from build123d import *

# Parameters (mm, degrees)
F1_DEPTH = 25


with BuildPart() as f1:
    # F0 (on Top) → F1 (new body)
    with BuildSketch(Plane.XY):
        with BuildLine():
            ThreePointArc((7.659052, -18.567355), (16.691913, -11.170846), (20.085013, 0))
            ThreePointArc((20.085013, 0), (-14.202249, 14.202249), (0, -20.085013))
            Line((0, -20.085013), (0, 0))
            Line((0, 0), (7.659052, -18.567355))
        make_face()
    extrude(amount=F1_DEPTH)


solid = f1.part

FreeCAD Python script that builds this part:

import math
import FreeCAD as App
import Part
import Sketcher
from FreeCAD import Vector
Q = App.Units.Quantity

doc = App.newDocument("Part")
body = doc.addObject("PartDesign::Body", "Body")

sketch1 = body.newObject("Sketcher::SketchObject", "Sketch")
sketch1.AttachmentSupport = (doc.getObject("XY_Plane"), [""])
sketch1.MapMode = "FlatFace"
sketch1.addGeometry([
    Part.ArcOfCircle(Part.Circle(Vector(0, 0, 0), Vector(0, 0, 1), 20), math.radians(-68), math.radians(0)),
    Part.ArcOfCircle(Part.Circle(Vector(0, 0, 0), Vector(0, 0, 1), 20), math.radians(0), math.radians(270)),
    Part.LineSegment(Vector(0, -20, 0), Vector(0, 0, 0)),
    Part.LineSegment(Vector(0, 0, 0), Vector(8, -19, 0)),
], False)
sketch1.addConstraint([
    Sketcher.Constraint("Tangent", 0, 2, 1, 1),
    Sketcher.Constraint("Coincident", 1, 2, 2, 1),
    Sketcher.Constraint("Coincident", 2, 2, 3, 1),
    Sketcher.Constraint("Coincident", 3, 2, 0, 1),
    Sketcher.Constraint("Vertical", 2),
    Sketcher.Constraint("Coincident", 0, 3, -1, 1),
    Sketcher.Constraint("Coincident", 2, 2, -1, 1),
    Sketcher.Constraint("Equal", 0, 1),
    Sketcher.Constraint("PointOnObject", 0, 2, -1),
    Sketcher.Constraint("Radius", 0, Q("20.085012 mm")),
    Sketcher.Constraint("DistanceX", 1, 2, 3, 2, Q("7.659052 mm")),
])
pad1 = body.newObject("PartDesign::Pad", "Pad")
pad1.Profile = sketch1
pad1.Length = 25

doc.recompute()
